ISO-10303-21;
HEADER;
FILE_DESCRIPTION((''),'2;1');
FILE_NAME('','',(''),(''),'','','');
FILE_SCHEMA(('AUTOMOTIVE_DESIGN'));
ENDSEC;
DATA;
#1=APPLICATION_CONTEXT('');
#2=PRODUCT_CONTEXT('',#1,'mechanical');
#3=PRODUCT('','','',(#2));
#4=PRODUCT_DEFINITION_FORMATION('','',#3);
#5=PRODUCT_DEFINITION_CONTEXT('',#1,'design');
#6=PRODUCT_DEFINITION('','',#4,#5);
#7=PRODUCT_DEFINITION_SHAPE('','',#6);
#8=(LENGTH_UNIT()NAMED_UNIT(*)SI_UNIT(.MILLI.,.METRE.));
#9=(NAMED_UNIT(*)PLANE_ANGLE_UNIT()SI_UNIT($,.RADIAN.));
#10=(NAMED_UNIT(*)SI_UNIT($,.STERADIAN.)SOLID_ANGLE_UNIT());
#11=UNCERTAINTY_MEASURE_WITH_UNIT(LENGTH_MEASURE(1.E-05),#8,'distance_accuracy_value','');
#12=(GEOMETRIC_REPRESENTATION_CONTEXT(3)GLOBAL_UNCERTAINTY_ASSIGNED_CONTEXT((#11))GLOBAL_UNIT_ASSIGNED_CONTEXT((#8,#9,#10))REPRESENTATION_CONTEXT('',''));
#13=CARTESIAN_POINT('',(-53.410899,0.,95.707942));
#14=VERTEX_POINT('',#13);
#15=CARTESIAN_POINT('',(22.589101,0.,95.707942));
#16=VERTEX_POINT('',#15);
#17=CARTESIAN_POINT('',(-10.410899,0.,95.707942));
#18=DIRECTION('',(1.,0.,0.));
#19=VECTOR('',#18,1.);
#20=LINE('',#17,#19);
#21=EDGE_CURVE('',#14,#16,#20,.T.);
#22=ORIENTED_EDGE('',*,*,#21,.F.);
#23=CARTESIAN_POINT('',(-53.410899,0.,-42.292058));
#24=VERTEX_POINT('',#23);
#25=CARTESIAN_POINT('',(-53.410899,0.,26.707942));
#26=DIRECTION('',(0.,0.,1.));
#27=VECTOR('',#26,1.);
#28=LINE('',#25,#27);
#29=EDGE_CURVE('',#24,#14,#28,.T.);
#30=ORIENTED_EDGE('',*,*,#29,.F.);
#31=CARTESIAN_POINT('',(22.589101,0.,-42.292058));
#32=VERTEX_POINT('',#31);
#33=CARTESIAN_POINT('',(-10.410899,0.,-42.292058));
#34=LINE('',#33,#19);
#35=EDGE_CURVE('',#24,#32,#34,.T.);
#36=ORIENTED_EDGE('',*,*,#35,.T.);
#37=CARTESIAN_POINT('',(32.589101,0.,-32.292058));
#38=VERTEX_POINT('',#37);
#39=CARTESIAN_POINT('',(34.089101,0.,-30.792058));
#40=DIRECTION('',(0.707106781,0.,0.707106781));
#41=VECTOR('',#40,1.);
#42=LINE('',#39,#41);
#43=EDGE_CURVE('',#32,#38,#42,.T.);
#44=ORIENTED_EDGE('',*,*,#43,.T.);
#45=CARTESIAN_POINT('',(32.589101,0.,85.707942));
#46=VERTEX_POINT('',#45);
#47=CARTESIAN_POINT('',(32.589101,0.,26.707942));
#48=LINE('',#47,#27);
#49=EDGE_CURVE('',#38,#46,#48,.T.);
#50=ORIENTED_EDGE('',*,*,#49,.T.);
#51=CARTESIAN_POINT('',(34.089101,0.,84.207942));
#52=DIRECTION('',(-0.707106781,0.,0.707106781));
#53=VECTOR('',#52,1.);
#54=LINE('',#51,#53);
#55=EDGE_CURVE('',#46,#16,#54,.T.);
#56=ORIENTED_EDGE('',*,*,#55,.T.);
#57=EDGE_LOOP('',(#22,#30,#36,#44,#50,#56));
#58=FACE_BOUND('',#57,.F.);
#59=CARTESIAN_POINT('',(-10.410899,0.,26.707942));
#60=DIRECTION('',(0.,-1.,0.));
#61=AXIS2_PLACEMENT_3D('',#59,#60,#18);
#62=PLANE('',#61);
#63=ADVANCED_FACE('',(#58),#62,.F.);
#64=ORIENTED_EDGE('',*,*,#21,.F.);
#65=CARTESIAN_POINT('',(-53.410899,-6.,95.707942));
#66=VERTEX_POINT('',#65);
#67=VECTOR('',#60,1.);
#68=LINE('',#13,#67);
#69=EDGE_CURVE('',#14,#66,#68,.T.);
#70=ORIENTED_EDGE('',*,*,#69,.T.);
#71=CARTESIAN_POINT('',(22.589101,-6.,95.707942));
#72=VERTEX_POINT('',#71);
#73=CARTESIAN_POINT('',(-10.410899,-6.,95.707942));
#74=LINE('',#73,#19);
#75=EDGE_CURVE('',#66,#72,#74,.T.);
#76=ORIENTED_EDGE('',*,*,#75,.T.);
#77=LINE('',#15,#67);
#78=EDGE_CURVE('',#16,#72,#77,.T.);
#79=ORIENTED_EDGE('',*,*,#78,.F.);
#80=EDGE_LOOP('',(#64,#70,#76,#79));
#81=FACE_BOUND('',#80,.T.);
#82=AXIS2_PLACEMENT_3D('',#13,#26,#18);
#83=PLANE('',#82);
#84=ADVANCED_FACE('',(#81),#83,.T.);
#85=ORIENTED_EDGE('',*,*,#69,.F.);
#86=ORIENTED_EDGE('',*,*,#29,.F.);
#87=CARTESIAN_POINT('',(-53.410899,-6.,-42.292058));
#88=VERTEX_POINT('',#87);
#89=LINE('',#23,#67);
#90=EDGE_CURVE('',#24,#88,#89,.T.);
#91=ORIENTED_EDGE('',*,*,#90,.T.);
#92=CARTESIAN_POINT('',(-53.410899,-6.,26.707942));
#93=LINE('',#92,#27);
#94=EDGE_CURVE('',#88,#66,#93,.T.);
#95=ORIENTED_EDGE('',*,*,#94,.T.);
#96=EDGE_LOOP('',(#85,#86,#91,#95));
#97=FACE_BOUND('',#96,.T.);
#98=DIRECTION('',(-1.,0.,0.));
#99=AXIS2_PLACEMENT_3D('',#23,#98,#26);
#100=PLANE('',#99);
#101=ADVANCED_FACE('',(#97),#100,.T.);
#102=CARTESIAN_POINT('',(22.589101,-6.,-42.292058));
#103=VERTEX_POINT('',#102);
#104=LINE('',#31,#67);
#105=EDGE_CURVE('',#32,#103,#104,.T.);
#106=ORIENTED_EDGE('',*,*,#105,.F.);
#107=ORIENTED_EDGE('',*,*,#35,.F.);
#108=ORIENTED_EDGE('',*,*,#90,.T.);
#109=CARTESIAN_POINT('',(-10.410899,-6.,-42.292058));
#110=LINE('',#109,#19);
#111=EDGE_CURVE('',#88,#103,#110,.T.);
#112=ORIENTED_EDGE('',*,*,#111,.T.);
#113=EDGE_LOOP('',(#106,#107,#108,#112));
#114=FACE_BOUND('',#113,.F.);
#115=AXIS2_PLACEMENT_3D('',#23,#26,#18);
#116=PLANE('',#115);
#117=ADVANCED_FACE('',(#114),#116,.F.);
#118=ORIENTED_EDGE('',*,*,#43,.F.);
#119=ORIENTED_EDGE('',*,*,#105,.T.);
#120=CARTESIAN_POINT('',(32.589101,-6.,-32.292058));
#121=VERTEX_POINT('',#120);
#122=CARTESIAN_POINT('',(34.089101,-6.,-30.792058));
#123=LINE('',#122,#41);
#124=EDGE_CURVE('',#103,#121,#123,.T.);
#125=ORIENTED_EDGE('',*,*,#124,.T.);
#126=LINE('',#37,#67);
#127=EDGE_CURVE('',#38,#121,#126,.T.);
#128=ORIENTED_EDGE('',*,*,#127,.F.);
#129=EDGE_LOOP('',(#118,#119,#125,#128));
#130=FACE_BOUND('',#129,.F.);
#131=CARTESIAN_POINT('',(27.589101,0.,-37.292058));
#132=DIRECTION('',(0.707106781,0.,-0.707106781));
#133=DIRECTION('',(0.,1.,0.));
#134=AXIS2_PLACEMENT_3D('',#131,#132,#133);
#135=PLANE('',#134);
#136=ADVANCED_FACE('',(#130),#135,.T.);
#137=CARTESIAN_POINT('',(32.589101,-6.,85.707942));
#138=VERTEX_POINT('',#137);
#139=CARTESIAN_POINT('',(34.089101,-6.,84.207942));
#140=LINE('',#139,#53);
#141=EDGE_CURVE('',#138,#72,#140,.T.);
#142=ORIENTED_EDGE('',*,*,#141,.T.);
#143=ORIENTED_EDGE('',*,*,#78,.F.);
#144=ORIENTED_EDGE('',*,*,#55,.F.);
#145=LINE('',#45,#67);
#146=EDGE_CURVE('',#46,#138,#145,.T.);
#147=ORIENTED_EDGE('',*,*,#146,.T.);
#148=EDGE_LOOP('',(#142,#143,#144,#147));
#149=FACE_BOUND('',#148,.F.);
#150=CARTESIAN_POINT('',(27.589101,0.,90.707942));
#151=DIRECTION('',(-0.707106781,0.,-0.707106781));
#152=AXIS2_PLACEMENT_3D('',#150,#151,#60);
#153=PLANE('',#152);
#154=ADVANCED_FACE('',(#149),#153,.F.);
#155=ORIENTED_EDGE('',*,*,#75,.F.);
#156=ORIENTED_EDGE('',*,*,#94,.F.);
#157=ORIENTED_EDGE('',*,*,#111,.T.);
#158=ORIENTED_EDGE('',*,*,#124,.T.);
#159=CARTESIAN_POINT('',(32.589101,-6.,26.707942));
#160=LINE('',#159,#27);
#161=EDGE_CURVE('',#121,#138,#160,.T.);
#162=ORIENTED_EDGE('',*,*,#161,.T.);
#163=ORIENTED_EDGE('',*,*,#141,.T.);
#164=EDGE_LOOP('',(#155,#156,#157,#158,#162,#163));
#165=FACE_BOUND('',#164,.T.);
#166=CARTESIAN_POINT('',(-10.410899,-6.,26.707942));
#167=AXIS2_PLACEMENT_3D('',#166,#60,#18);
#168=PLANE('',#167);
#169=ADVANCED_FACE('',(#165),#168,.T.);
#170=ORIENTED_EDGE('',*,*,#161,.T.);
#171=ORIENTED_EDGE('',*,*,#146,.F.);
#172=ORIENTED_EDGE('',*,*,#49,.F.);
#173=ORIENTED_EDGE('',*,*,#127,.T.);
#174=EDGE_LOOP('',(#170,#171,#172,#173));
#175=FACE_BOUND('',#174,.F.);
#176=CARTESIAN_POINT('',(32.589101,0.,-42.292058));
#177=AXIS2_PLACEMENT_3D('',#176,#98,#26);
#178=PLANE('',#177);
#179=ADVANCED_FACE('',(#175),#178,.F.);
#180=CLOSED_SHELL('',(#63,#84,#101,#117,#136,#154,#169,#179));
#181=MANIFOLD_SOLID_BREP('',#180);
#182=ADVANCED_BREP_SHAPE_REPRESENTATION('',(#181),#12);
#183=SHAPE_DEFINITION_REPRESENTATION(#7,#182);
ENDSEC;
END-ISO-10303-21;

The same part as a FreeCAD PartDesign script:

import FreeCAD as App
import Part
import Sketcher
from FreeCAD import Vector
Q = App.Units.Quantity


def edges_at(feature, points):
    """Names of the edges that pass closest to the given points."""
    edges = feature.Shape.Edges
    near = lambda p: min(range(len(edges)), key=lambda i: edges[i].distToShape(Part.Vertex(*p))[0])
    return sorted({f"Edge{near(p) + 1}" for p in points})

doc = App.newDocument("Part")
body = doc.addObject("PartDesign::Body", "Body")

sketch1 = doc.addObject("Sketcher::SketchObject", "Sketch")
body.addObject(sketch1)
sketch1.AttachmentSupport = (doc.XZ_Plane, [""])
sketch1.MapMode = "FlatFace"
sketch1.addGeometry(Part.LineSegment(Vector(-53, 96, 0), Vector(-53, -42, 0)), False)
sketch1.addGeometry(Part.LineSegment(Vector(-53, -42, 0), Vector(33, -42, 0)), False)
sketch1.addGeometry(Part.LineSegment(Vector(33, -42, 0), Vector(33, 96, 0)), False)
sketch1.addGeometry(Part.LineSegment(Vector(33, 96, 0), Vector(-53, 96, 0)), False)
sketch1.addConstraint(Sketcher.Constraint("Coincident", 0, 2, 1, 1))
sketch1.addConstraint(Sketcher.Constraint("Coincident", 1, 2, 2, 1))
sketch1.addConstraint(Sketcher.Constraint("Coincident", 2, 2, 3, 1))
sketch1.addConstraint(Sketcher.Constraint("Coincident", 3, 2, 0, 1))
sketch1.addConstraint(Sketcher.Constraint("Vertical", 0))
sketch1.addConstraint(Sketcher.Constraint("Horizontal", 1))
sketch1.addConstraint(Sketcher.Constraint("Vertical", 2))
sketch1.addConstraint(Sketcher.Constraint("Horizontal", 3))
sketch1.addConstraint(Sketcher.Constraint("DistanceX", 1, 1, 1, 2, Q("86 mm")))
sketch1.addConstraint(Sketcher.Constraint("DistanceY", 0, 2, 0, 1, Q("138 mm")))
sketch1.addConstraint(Sketcher.Constraint("DistanceX", 0, 2, -1, 1, Q("53.410899 mm")))
sketch1.addConstraint(Sketcher.Constraint("DistanceY", 0, 2, -1, 1, Q("42.292058 mm")))
pad1 = doc.addObject("PartDesign::Pad", "Pad")
body.addObject(pad1)
pad1.Profile = sketch1
pad1.Length = 6
doc.recompute()

chamfer = doc.addObject("PartDesign::Chamfer", "Chamfer")
body.addObject(chamfer)
chamfer.Base = (pad1, edges_at(pad1, [(32.589, -3, 95.708), (32.589, -3, -42.292)]))
chamfer.Size = 10

doc.recompute()
